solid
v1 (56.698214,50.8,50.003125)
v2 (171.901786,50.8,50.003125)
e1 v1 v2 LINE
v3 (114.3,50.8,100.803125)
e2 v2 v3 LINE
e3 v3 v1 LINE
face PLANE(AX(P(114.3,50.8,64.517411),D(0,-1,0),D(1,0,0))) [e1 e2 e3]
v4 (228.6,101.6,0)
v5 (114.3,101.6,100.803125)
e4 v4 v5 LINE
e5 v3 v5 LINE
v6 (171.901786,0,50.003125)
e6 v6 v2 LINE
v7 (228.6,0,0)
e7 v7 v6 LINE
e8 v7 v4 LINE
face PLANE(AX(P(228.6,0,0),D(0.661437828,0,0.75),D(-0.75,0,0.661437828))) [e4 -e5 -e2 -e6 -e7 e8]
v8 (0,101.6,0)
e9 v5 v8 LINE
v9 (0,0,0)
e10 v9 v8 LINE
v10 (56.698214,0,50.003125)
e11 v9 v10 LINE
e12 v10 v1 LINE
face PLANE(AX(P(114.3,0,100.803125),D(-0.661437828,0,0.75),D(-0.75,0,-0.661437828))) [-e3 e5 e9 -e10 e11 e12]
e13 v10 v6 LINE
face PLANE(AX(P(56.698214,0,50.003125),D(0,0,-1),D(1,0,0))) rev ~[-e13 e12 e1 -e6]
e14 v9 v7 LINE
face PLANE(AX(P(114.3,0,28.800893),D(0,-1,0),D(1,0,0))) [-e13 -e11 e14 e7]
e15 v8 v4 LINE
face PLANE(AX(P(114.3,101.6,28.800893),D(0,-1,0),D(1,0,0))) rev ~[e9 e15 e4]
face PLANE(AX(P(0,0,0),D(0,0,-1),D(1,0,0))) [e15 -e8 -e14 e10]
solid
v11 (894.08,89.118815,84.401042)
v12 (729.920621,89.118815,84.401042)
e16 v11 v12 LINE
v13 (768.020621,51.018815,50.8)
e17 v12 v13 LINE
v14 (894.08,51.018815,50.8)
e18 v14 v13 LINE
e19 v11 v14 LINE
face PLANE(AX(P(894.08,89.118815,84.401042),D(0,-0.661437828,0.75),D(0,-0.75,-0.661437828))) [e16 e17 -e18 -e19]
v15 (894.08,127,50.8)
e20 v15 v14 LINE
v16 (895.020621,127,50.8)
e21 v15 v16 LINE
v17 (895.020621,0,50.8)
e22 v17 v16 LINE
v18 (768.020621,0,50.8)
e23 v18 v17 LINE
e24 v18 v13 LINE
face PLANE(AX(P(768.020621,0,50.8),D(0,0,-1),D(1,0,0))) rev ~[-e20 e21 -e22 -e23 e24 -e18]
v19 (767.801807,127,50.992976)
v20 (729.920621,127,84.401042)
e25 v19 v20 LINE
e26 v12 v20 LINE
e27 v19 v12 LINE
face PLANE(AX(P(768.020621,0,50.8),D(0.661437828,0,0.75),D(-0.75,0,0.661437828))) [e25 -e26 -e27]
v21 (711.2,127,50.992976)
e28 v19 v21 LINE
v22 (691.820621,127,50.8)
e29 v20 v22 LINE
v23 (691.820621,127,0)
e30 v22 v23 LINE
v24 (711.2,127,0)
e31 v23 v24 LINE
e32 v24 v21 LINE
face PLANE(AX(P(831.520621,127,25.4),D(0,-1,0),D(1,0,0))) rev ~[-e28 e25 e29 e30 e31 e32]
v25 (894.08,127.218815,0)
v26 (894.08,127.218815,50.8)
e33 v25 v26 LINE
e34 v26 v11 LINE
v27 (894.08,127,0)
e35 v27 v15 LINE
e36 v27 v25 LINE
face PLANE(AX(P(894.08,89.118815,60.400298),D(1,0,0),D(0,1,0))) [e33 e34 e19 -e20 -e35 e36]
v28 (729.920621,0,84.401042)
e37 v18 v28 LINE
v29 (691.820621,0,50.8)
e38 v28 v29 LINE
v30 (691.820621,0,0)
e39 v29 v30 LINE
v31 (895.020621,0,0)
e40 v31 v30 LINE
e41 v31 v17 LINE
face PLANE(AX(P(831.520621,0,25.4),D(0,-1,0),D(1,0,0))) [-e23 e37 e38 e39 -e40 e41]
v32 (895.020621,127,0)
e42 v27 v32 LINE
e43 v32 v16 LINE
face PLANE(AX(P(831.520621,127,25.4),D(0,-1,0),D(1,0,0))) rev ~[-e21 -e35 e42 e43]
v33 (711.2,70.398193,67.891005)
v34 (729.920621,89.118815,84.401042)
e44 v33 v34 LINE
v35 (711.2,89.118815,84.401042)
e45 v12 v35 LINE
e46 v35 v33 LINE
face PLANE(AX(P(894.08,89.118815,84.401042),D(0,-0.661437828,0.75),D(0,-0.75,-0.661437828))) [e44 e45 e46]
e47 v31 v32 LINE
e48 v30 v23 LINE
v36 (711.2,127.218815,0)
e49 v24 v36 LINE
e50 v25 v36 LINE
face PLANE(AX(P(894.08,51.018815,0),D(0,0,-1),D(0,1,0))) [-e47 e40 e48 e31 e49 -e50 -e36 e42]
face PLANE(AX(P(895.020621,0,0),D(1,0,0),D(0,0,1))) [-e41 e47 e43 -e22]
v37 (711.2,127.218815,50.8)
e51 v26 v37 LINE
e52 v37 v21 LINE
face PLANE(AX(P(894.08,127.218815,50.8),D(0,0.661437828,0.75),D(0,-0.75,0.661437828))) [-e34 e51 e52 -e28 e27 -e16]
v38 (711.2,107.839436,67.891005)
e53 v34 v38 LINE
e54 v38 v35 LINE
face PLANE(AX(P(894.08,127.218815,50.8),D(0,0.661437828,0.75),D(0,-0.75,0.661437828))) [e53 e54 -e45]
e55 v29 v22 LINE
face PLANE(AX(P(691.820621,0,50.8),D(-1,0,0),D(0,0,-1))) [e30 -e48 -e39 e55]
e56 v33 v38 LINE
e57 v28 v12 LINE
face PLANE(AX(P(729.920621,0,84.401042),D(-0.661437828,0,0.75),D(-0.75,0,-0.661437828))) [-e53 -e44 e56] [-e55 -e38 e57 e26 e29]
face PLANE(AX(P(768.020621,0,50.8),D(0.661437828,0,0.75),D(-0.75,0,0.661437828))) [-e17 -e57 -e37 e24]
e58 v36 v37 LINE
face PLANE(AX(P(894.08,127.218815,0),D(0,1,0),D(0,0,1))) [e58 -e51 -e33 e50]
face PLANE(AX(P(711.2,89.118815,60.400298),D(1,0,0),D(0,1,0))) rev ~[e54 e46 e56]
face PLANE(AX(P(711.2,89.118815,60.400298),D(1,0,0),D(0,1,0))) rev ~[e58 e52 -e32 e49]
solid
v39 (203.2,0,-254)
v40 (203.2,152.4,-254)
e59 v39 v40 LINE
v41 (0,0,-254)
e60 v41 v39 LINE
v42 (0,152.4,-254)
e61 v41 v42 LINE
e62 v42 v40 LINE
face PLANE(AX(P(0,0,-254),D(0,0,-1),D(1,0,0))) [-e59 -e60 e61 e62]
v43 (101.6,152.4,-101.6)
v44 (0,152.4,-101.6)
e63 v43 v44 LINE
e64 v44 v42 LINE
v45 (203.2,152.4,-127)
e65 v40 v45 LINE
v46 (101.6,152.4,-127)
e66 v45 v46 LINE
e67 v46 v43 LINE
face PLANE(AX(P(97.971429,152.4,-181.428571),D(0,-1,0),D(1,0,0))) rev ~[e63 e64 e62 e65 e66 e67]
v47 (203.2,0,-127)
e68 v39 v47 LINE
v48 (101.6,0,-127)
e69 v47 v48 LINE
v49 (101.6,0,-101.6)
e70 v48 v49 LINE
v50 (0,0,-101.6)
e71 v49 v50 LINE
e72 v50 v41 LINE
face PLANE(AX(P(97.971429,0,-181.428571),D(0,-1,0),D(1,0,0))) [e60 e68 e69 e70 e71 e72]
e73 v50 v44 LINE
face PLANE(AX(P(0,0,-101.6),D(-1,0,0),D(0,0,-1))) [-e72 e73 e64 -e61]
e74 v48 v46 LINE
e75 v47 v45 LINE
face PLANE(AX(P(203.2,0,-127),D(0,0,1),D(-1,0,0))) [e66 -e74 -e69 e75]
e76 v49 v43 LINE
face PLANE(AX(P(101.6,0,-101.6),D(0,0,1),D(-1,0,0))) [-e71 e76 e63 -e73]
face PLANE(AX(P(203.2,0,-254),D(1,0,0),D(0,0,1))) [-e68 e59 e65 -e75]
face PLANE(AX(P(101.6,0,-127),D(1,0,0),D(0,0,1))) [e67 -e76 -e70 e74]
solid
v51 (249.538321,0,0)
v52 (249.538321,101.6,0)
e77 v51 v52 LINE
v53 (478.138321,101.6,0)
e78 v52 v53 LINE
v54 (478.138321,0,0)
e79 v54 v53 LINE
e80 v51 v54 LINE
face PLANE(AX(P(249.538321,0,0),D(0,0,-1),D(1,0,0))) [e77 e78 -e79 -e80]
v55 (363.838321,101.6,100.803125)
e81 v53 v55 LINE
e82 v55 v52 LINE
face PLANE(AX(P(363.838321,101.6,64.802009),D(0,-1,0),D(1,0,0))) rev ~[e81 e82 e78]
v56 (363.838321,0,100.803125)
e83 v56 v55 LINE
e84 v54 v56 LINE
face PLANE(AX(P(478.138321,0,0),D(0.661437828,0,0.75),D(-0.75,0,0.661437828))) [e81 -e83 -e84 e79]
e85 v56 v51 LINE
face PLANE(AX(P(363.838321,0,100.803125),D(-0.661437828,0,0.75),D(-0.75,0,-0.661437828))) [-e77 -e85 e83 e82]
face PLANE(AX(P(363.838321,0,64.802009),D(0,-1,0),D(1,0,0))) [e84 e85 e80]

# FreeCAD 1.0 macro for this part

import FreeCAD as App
import Part
import Sketcher

V = App.Vector
Q = App.Units.Quantity

doc = App.newDocument("Part")
body = doc.addObject("PartDesign::Body", "Body")

# Sketch on XZ plane
sketch1 = body.newObject("Sketcher::SketchObject", "Sketch")
sketch1.AttachmentSupport = (doc.getObject("XZ_Plane"), [""])
sketch1.MapMode = "FlatFace"
sketch1.addGeometry(Part.LineSegment(V(114, 101, 0), V(0, 0, 0)), False)
sketch1.addGeometry(Part.LineSegment(V(0, 0, 0), V(229, 0, 0)), False)
sketch1.addGeometry(Part.LineSegment(V(229, 0, 0), V(114, 101, 0)), False)
sketch1.addConstraint(Sketcher.Constraint("Coincident", 0, 2, 1, 1))
sketch1.addConstraint(Sketcher.Constraint("Coincident", 1, 2, 2, 1))
sketch1.addConstraint(Sketcher.Constraint("Coincident", 2, 2, 0, 1))
sketch1.addConstraint(Sketcher.Constraint("Horizontal", 1))
sketch1.addConstraint(Sketcher.Constraint("Coincident", 0, 2, -1, 1))
sketch1.addConstraint(Sketcher.Constraint("Equal", 0, 2))
sketch1.addConstraint(Sketcher.Constraint("DistanceX", 1, 1, 1, 2, Q("9 in")))
sketch1.addConstraint(Sketcher.Constraint("Distance", 0, Q("6 in")))
pad1 = body.newObject("PartDesign::Pad", "Pad")
pad1.Profile = sketch1
pad1.Length = Q("4 in")
pad1.Reversed = True

# Sketch on XZ plane
sketch2 = body.newObject("Sketcher::SketchObject", "Sketch001")
sketch2.AttachmentSupport = (doc.getObject("XZ_Plane"), [""])
sketch2.MapMode = "FlatFace"
sketch2.addGeometry(Part.LineSegment(V(114, 101, 0), V(57, 50, 0)), False)
sketch2.addGeometry(Part.LineSegment(V(57, 50, 0), V(172, 50, 0)), False)
sketch2.addGeometry(Part.LineSegment(V(172, 50, 0), V(114, 101, 0)), False)
sketch2.addConstraint(Sketcher.Constraint("Coincident", 0, 2, 1, 1))
sketch2.addConstraint(Sketcher.Constraint("Coincident", 1, 2, 2, 1))
sketch2.addConstraint(Sketcher.Constraint("Coincident", 2, 2, 0, 1))
sketch2.addConstraint(Sketcher.Constraint("Horizontal", 1))
sketch2.addConstraint(Sketcher.Constraint("Equal", 0, 2))
sketch2.addConstraint(Sketcher.Constraint("DistanceY", 0, 2, 2, 2, Q("2 in")))
sketch2.addConstraint(Sketcher.Constraint("DistanceX", -1, 1, 2, 2, Q("4.5 in")))
sketch2.addConstraint(Sketcher.Constraint("DistanceX", 1, 1, 1, 2, 115.203571))
sketch2.addConstraint(Sketcher.Constraint("DistanceY", -1, 1, 0, 2, 50.003125))
pad2 = body.newObject("PartDesign::Pad", "Pad001")
pad2.Profile = sketch2
pad2.Length = Q("2 in")
pad2.Reversed = True

# Sketch on XZ plane
sketch3 = body.newObject("Sketcher::SketchObject", "Sketch002")
sketch3.AttachmentSupport = (doc.getObject("XZ_Plane"), [""])
sketch3.MapMode = "FlatFace"
sketch3.addGeometry(Part.LineSegment(V(114, 101, 0), V(57, 50, 0)), False)
sketch3.addGeometry(Part.LineSegment(V(57, 50, 0), V(172, 50, 0)), False)
sketch3.addGeometry(Part.LineSegment(V(172, 50, 0), V(114, 101, 0)), False)
sketch3.addConstraint(Sketcher.Constraint("Coincident", 0, 2, 1, 1))
sketch3.addConstraint(Sketcher.Constraint("Coincident", 1, 2, 2, 1))
sketch3.addConstraint(Sketcher.Constraint("Coincident", 2, 2, 0, 1))
sketch3.addConstraint(Sketcher.Constraint("Horizontal", 1))
sketch3.addConstraint(Sketcher.Constraint("Equal", 0, 2))
sketch3.addConstraint(Sketcher.Constraint("DistanceY", 0, 2, 2, 2, Q("2 in")))
sketch3.addConstraint(Sketcher.Constraint("DistanceX", -1, 1, 2, 2, Q("4.5 in")))
sketch3.addConstraint(Sketcher.Constraint("DistanceX", 1, 1, 1, 2, 115.203571))
sketch3.addConstraint(Sketcher.Constraint("DistanceY", -1, 1, 0, 2, 50.003125))
pocket1 = body.newObject("PartDesign::Pocket", "Pocket")
pocket1.Profile = sketch3
pocket1.Length = Q("2 in")

# Sketch on YZ plane
sketch4 = body.newObject("Sketcher::SketchObject", "Sketch003")
sketch4.AttachmentSupport = (doc.getObject("YZ_Plane"), [""])
sketch4.MapMode = "FlatFace"
sketch4.AttachmentOffset = App.Placement(V(0, 0, 35.2 * 25.4), App.Rotation())
sketch4.addGeometry(Part.LineSegment(V(0, 25, 0), V(51, 101, 0)), False)
sketch4.addGeometry(Part.LineSegment(V(51, 101, 0), V(0, 101, 0)), False)
sketch4.addGeometry(Part.LineSegment(V(0, 101, 0), V(0, 25, 0)), False)
sketch4.addConstraint(Sketcher.Constraint("Coincident", 0, 2, 1, 1))
sketch4.addConstraint(Sketcher.Constraint("Coincident", 1, 2, 2, 1))
sketch4.addConstraint(Sketcher.Constraint("Coincident", 2, 2, 0, 1))
sketch4.addConstraint(Sketcher.Constraint("Horizontal", 1))
sketch4.addConstraint(Sketcher.Constraint("Vertical", 2))
sketch4.addConstraint(Sketcher.Constraint("PointOnObject", 1, 2, -2))
sketch4.addConstraint(Sketcher.Constraint("DistanceX", 1, 2, 1, 1, Q("2 in")))
sketch4.addConstraint(Sketcher.Constraint("DistanceY", 2, 2, 2, 1, Q("3 in")))
sketch4.addConstraint(Sketcher.Constraint("DistanceY", -1, 1, 0, 2, 100.803125))
pocket2 = body.newObject("PartDesign::Pocket", "Pocket001")
pocket2.Profile = sketch4
pocket2.Length = Q("11 in")
body2 = doc.addObject("PartDesign::Body", "Body001")

# Sketch on XZ plane
sketch5 = body2.newObject("Sketcher::SketchObject", "Sketch004")
sketch5.AttachmentSupport = (doc.getObject("XZ_Plane001"), [""])
sketch5.MapMode = "FlatFace"
sketch5.addGeometry(Part.LineSegment(V(364, 101, 0), V(250, 0, 0)), False)
sketch5.addGeometry(Part.LineSegment(V(250, 0, 0), V(478, 0, 0)), False)
sketch5.addGeometry(Part.LineSegment(V(478, 0, 0), V(364, 101, 0)), False)
sketch5.addConstraint(Sketcher.Constraint("Coincident", 0, 2, 1, 1))
sketch5.addConstraint(Sketcher.Constraint("Coincident", 1, 2, 2, 1))
sketch5.addConstraint(Sketcher.Constraint("Coincident", 2, 2, 0, 1))
sketch5.addConstraint(Sketcher.Constraint("Horizontal", 1))
sketch5.addConstraint(Sketcher.Constraint("PointOnObject", 0, 2, -1))
sketch5.addConstraint(Sketcher.Constraint("Equal", 0, 2))
sketch5.addConstraint(Sketcher.Constraint("DistanceX", 1, 1, 1, 2, Q("9 in")))
sketch5.addConstraint(Sketcher.Constraint("Distance", 0, Q("6 in")))
sketch5.addConstraint(Sketcher.Constraint("DistanceX", -1, 1, 0, 2, 249.538321))
pad3 = body2.newObject("PartDesign::Pad", "Pad002")
pad3.Profile = sketch5
pad3.Length = Q("4 in")
pad3.Reversed = True
body3 = doc.addObject("PartDesign::Body", "Body002")

# Sketch on XZ plane
sketch6 = body3.newObject("Sketcher::SketchObject", "Sketch005")
sketch6.AttachmentSupport = (doc.getObject("XZ_Plane002"), [""])
sketch6.MapMode = "FlatFace"
sketch6.addGeometry(Part.LineSegment(V(730, 84, 0), V(692, 51, 0)), False)
sketch6.addGeometry(Part.LineSegment(V(692, 51, 0), V(692, 0, 0)), False)
sketch6.addGeometry(Part.LineSegment(V(692, 0, 0), V(768, 0, 0)), False)
sketch6.addGeometry(Part.LineSegment(V(768, 0, 0), V(768, 51, 0)), False)
sketch6.addGeometry(Part.LineSegment(V(768, 51, 0), V(730, 84, 0)), False)
sketch6.addConstraint(Sketcher.Constraint("Coincident", 0, 2, 1, 1))
sketch6.addConstraint(Sketcher.Constraint("Coincident", 1, 2, 2, 1))
sketch6.addConstraint(Sketcher.Constraint("Coincident", 2, 2, 3, 1))
sketch6.addConstraint(Sketcher.Constraint("Coincident", 3, 2, 4, 1))
sketch6.addConstraint(Sketcher.Constraint("Coincident", 4, 2, 0, 1))
sketch6.addConstraint(Sketcher.Constraint("Vertical", 1))
sketch6.addConstraint(Sketcher.Constraint("Horizontal", 2))
sketch6.addConstraint(Sketcher.Constraint("Vertical", 3))
sketch6.addConstraint(Sketcher.Constraint("PointOnObject", 1, 2, -1))
sketch6.addConstraint(Sketcher.Constraint("Horizontal", 0, 2, 3, 2))
sketch6.addConstraint(Sketcher.Constraint("Equal", 0, 4))
sketch6.addConstraint(Sketcher.Constraint("DistanceX", 2, 1, 2, 2, Q("3 in")))
sketch6.addConstraint(Sketcher.Constraint("DistanceY", 1, 2, 1, 1, Q("2 in")))
sketch6.addConstraint(Sketcher.Constraint("Distance", 0, Q("2 in")))
sketch6.addConstraint(Sketcher.Constraint("DistanceX", -1, 1, 0, 2, 691.820621))
pad4 = body3.newObject("PartDesign::Pad", "Pad003")
pad4.Profile = sketch6
pad4.Length = Q("5 in")
pad4.Reversed = True

# Sketch on XZ plane
sketch7 = body3.newObject("Sketcher::SketchObject", "Sketch006")
sketch7.AttachmentSupport = (doc.getObject("XZ_Plane002"), [""])
sketch7.MapMode = "FlatFace"
sketch7.addGeometry(Part.LineSegment(V(768, 51, 0), V(768, 0, 0)), False)
sketch7.addGeometry(Part.LineSegment(V(768, 0, 0), V(895, 0, 0)), False)
sketch7.addGeometry(Part.LineSegment(V(895, 0, 0), V(895, 51, 0)), False)
sketch7.addGeometry(Part.LineSegment(V(895, 51, 0), V(768, 51, 0)), False)
sketch7.addConstraint(Sketcher.Constraint("Coincident", 0, 2, 1, 1))
sketch7.addConstraint(Sketcher.Constraint("Coincident", 1, 2, 2, 1))
sketch7.addConstraint(Sketcher.Constraint("Coincident", 2, 2, 3, 1))
sketch7.addConstraint(Sketcher.Constraint("Coincident", 3, 2, 0, 1))
sketch7.addConstraint(Sketcher.Constraint("Vertical", 0))
sketch7.addConstraint(Sketcher.Constraint("Horizontal", 1))
sketch7.addConstraint(Sketcher.Constraint("Vertical", 2))
sketch7.addConstraint(Sketcher.Constraint("Horizontal", 3))
sketch7.addConstraint(Sketcher.Constraint("PointOnObject", 0, 2, -1))
sketch7.addConstraint(Sketcher.Constraint("DistanceX", 1, 1, 1, 2, Q("5 in")))
sketch7.addConstraint(Sketcher.Constraint("DistanceY", 0, 2, 0, 1, Q("2 in")))
sketch7.addConstraint(Sketcher.Constraint("DistanceX", -1, 1, 0, 2, 768.020621))
pad5 = body3.newObject("PartDesign::Pad", "Pad004")
pad5.Profile = sketch7
pad5.Length = Q("5 in")
pad5.Reversed = True

# Sketch on YZ plane
sketch8 = body3.newObject("Sketcher::SketchObject", "Sketch007")
sketch8.AttachmentSupport = (doc.getObject("YZ_Plane002"), [""])
sketch8.MapMode = "FlatFace"
sketch8.AttachmentOffset = App.Placement(V(0, 0, 35.2 * 25.4), App.Rotation())
sketch8.addGeometry(Part.LineSegment(V(127, 51, 0), V(89, 84, 0)), False)
sketch8.addGeometry(Part.LineSegment(V(89, 84, 0), V(51, 51, 0)), False)
sketch8.addGeometry(Part.LineSegment(V(51, 51, 0), V(51, 0, 0)), False)
sketch8.addGeometry(Part.LineSegment(V(51, 0, 0), V(127, 0, 0)), False)
sketch8.addGeometry(Part.LineSegment(V(127, 0, 0), V(127, 51, 0)), False)
sketch8.addConstraint(Sketcher.Constraint("Coincident", 0, 2, 1, 1))
sketch8.addConstraint(Sketcher.Constraint("Coincident", 1, 2, 2, 1))
sketch8.addConstraint(Sketcher.Constraint("Coincident", 2, 2, 3, 1))
sketch8.addConstraint(Sketcher.Constraint("Coincident", 3, 2, 4, 1))
sketch8.addConstraint(Sketcher.Constraint("Coincident", 4, 2, 0, 1))
sketch8.addConstraint(Sketcher.Constraint("Vertical", 2))
sketch8.addConstraint(Sketcher.Constraint("Horizontal", 3))
sketch8.addConstraint(Sketcher.Constraint("Vertical", 4))
sketch8.addConstraint(Sketcher.Constraint("PointOnObject", 2, 2, -1))
sketch8.addConstraint(Sketcher.Constraint("Horizontal", 1, 2, 4, 2))
sketch8.addConstraint(Sketcher.Constraint("Equal", 0, 1))
sketch8.addConstraint(Sketcher.Constraint("DistanceX", 3, 1, 3, 2, Q("3 in")))
sketch8.addConstraint(Sketcher.Constraint("DistanceY", 2, 2, 2, 1, Q("2 in")))
sketch8.addConstraint(Sketcher.Constraint("Distance", 0, Q("2 in")))
sketch8.addConstraint(Sketcher.Constraint("DistanceX", -1, 1, 0, 2, 89.118815))
pad6 = body3.newObject("PartDesign::Pad", "Pad005")
pad6.Profile = sketch8
pad6.Length = Q("7.2 in")
pad6.Reversed = True
body4 = doc.addObject("PartDesign::Body", "Body003")

# Sketch on XZ plane
sketch9 = body4.newObject("Sketcher::SketchObject", "Sketch008")
sketch9.AttachmentSupport = (doc.getObject("XZ_Plane003"), [""])
sketch9.MapMode = "FlatFace"
sketch9.addGeometry(Part.LineSegment(V(102, -102, 0), V(0, -102, 0)), False)
sketch9.addGeometry(Part.LineSegment(V(0, -102, 0), V(0, -254, 0)), False)
sketch9.addGeometry(Part.LineSegment(V(0, -254, 0), V(203, -254, 0)), False)
sketch9.addGeometry(Part.LineSegment(V(203, -254, 0), V(203, -127, 0)), False)
sketch9.addGeometry(Part.LineSegment(V(203, -127, 0), V(102, -127, 0)), False)
sketch9.addGeometry(Part.LineSegment(V(102, -127, 0), V(102, -102, 0)), False)
sketch9.addConstraint(Sketcher.Constraint("Coincident", 0, 2, 1, 1))
sketch9.addConstraint(Sketcher.Constraint("Coincident", 1, 2, 2, 1))
sketch9.addConstraint(Sketcher.Constraint("Coincident", 2, 2, 3, 1))
sketch9.addConstraint(Sketcher.Constraint("Coincident", 3, 2, 4, 1))
sketch9.addConstraint(Sketcher.Constraint("Coincident", 4, 2, 5, 1))
sketch9.addConstraint(Sketcher.Constraint("Coincident", 5, 2, 0, 1))
sketch9.addConstraint(Sketcher.Constraint("Horizontal", 0))
sketch9.addConstraint(Sketcher.Constraint("Vertical", 1))
sketch9.addConstraint(Sketcher.Constraint("Horizontal", 2))
sketch9.addConstraint(Sketcher.Constraint("Vertical", 3))
sketch9.addConstraint(Sketcher.Constraint("Horizontal", 4))
sketch9.addConstraint(Sketcher.Constraint("Vertical", 5))
sketch9.addConstraint(Sketcher.Constraint("PointOnObject", 0, 2, -2))
sketch9.addConstraint(Sketcher.Constraint("Equal", 0, 4))
sketch9.addConstraint(Sketcher.Constraint("DistanceX", 0, 2, 0, 1, Q("4 in")))
sketch9.addConstraint(Sketcher.Constraint("DistanceY", 1, 2, 1, 1, Q("6 in")))
sketch9.addConstraint(Sketcher.Constraint("DistanceY", 3, 1, 3, 2, Q("5 in")))
sketch9.addConstraint(Sketcher.Constraint("DistanceY", 0, 2, -1, 1, Q("4 in")))
pad7 = body4.newObject("PartDesign::Pad", "Pad006")
pad7.Profile = sketch9
pad7.Length = Q("6 in")
pad7.Reversed = True

doc.recompute()
